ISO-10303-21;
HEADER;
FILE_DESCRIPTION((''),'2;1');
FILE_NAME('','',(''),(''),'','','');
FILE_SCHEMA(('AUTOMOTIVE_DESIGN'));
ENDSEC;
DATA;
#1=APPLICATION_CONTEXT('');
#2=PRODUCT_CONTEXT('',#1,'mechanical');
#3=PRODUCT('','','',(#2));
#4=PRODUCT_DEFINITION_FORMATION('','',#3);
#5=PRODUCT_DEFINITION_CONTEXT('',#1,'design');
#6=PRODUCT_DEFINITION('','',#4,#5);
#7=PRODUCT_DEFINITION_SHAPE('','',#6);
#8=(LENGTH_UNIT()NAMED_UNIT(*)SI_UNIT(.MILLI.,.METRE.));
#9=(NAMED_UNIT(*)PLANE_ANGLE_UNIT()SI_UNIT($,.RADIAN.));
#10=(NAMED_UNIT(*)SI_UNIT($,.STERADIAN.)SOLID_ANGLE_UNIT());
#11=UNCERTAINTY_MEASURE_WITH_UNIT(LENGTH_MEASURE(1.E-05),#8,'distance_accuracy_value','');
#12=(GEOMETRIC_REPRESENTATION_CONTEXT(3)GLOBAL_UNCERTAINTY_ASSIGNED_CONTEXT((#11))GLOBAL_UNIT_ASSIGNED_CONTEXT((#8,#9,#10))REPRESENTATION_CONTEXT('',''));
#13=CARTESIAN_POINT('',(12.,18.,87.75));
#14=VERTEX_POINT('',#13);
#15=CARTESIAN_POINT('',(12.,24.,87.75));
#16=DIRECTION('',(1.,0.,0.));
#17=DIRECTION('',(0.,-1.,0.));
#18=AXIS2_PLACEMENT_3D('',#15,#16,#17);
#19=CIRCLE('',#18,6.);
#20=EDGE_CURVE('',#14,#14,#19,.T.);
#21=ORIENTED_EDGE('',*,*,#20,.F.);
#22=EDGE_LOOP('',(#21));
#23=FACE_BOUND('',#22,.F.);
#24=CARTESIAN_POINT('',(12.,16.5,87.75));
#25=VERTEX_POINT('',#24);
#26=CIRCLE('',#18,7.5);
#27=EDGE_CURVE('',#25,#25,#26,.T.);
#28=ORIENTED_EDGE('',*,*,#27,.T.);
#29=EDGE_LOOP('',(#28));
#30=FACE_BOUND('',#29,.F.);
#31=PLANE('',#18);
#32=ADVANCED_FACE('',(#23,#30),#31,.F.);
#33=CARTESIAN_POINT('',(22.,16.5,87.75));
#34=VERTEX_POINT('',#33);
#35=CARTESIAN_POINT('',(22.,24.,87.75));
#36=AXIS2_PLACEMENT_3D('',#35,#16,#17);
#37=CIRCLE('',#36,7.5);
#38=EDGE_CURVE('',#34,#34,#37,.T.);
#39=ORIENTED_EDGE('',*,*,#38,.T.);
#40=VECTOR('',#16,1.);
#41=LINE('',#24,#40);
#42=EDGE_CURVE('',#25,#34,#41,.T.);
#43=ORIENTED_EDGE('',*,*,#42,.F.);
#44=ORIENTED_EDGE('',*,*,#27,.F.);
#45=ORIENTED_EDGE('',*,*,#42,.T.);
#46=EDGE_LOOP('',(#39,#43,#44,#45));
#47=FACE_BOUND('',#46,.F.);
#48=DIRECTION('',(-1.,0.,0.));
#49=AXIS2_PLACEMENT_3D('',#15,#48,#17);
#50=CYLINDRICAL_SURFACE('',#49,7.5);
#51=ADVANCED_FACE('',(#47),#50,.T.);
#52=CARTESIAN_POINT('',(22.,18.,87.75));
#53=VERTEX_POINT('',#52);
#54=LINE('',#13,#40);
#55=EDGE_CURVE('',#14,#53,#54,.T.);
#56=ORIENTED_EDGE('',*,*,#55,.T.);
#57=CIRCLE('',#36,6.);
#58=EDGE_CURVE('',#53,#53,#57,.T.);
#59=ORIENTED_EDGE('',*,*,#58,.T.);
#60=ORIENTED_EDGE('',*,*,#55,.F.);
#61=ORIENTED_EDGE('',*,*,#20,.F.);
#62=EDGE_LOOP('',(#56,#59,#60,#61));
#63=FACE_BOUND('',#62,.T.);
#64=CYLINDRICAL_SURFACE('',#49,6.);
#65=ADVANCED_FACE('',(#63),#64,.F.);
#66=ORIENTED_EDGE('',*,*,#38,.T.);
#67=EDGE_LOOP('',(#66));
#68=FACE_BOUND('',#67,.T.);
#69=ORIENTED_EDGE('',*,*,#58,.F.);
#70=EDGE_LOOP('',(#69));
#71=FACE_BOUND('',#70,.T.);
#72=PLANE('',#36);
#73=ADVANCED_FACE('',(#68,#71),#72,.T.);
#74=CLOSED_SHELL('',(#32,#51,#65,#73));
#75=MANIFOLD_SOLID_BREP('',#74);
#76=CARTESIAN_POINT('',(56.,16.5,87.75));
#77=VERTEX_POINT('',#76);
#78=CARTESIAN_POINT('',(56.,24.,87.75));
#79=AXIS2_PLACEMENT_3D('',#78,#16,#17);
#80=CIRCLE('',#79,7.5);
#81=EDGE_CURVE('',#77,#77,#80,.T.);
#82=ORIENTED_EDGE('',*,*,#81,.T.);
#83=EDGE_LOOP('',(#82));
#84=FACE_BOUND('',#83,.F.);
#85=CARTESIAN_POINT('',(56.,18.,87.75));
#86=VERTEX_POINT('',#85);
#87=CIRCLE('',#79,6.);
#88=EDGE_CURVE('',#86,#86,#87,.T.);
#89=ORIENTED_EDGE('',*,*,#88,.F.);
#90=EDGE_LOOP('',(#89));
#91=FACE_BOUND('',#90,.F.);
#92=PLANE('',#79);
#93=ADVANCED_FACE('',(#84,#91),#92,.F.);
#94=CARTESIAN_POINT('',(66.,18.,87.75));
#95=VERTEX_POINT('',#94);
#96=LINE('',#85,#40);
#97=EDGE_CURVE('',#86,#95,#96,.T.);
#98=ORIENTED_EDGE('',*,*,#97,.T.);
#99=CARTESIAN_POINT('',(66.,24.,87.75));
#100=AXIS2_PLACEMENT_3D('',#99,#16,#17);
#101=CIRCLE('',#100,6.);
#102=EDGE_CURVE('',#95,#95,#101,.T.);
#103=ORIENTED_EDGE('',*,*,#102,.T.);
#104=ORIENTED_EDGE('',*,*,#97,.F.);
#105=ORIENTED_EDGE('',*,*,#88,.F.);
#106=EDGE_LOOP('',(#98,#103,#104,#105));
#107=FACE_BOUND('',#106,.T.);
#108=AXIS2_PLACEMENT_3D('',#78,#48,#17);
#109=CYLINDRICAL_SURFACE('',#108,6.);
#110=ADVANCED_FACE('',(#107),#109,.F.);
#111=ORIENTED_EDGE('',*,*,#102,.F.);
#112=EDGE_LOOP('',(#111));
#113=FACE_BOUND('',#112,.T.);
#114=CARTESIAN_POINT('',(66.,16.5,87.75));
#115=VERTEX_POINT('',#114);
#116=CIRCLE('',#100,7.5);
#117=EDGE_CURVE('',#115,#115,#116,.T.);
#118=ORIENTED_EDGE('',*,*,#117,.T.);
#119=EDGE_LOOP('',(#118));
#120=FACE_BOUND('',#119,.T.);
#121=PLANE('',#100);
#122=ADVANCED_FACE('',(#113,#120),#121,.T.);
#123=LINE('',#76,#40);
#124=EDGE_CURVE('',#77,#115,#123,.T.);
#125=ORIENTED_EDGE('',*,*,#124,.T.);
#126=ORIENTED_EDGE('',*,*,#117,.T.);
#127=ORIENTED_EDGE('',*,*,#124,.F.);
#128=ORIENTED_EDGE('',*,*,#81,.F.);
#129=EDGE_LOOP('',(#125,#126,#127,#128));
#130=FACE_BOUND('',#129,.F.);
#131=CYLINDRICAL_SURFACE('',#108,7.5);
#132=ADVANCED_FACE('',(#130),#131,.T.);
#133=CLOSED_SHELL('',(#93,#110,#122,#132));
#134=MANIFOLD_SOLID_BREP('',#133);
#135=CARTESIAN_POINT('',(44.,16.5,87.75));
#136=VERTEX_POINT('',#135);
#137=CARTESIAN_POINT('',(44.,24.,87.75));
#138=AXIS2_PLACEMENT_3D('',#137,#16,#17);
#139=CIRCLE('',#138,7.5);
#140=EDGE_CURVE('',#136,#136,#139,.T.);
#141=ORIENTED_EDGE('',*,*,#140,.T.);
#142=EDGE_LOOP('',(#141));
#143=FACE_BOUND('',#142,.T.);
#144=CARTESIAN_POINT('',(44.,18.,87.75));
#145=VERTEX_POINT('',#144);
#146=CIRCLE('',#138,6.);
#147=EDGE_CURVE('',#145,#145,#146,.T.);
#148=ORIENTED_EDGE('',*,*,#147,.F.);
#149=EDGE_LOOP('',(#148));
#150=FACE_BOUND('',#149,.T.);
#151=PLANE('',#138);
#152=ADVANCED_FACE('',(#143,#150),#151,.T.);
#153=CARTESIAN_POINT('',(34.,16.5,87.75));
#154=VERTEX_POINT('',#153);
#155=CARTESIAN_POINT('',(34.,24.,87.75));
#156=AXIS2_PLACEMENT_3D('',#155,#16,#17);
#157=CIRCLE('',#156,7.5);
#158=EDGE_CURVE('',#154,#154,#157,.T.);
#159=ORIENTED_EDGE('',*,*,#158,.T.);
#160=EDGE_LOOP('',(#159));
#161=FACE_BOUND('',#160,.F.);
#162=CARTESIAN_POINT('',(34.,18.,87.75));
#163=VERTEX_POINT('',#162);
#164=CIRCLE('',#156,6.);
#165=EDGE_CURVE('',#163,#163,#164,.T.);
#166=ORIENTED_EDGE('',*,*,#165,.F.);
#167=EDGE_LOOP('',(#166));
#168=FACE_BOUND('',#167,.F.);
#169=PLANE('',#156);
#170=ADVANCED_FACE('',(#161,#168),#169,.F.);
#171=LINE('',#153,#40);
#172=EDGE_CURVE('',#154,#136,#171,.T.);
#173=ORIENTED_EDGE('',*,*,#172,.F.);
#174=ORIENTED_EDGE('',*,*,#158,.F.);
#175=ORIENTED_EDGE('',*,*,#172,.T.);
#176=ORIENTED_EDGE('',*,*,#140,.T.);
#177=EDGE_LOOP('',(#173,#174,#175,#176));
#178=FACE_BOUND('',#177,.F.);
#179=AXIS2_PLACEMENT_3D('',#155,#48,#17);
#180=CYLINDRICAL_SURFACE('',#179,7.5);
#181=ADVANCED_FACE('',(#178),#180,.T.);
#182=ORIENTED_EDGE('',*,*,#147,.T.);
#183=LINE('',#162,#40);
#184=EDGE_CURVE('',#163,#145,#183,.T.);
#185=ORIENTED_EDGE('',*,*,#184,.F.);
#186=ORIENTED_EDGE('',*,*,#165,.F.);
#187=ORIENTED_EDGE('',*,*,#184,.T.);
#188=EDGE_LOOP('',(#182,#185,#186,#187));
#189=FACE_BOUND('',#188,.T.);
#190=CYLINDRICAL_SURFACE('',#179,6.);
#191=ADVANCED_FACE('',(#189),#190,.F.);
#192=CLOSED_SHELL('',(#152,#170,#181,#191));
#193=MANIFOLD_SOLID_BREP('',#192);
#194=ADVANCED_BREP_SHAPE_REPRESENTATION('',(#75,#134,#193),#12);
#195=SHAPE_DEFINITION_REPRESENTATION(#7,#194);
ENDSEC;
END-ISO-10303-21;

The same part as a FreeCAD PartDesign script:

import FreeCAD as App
import Part
import Sketcher

doc = App.newDocument("Part")
body = doc.addObject("PartDesign::Body", "Body")

# Sketch on YZ plane
sketch1 = doc.addObject("Sketcher::SketchObject", "Sketch")
body.addObject(sketch1)
sketch1.AttachmentSupport = (doc.YZ_Plane, [""])
sketch1.MapMode = "FlatFace"
sketch1.AttachmentOffset = App.Placement(App.Vector(0, 0, 56), App.Rotation())
sketch1.addGeometry([
    Part.Circle(App.Vector(24, 87.75, 0), App.Vector(0, 0, 1), 7.5),
    Part.Circle(App.Vector(24, 87.75, 0), App.Vector(0, 0, 1), 6),
], False)
sketch1.addConstraint([
    Sketcher.Constraint("Coincident", 1, 3, 0, 3),
    Sketcher.Constraint("Diameter", 0, 15.0),
    Sketcher.Constraint("Diameter", 1, 12.0),
    Sketcher.Constraint("DistanceX", -1, 1, 0, 3, 24.0),
    Sketcher.Constraint("DistanceY", -1, 1, 0, 3, 87.75),
])
pad1 = doc.addObject("PartDesign::Pad", "Pad")
body.addObject(pad1)
pad1.Profile = sketch1
pad1.Length = 10
body2 = doc.addObject("PartDesign::Body", "Body001")

# Sketch on YZ plane
sketch2 = doc.addObject("Sketcher::SketchObject", "Sketch001")
body2.addObject(sketch2)
sketch2.AttachmentSupport = (doc.getObject("YZ_Plane001"), [""])
sketch2.MapMode = "FlatFace"
sketch2.AttachmentOffset = App.Placement(App.Vector(0, 0, 12), App.Rotation())
sketch2.addGeometry([
    Part.Circle(App.Vector(24, 87.75, 0), App.Vector(0, 0, 1), 7.5),
    Part.Circle(App.Vector(24, 87.75, 0), App.Vector(0, 0, 1), 6),
], False)
sketch2.addConstraint([
    Sketcher.Constraint("Coincident", 1, 3, 0, 3),
    Sketcher.Constraint("Diameter", 0, 15.0),
    Sketcher.Constraint("Diameter", 1, 12.0),
    Sketcher.Constraint("DistanceX", -1, 1, 0, 3, 24.0),
    Sketcher.Constraint("DistanceY", -1, 1, 0, 3, 87.75),
])
pad2 = doc.addObject("PartDesign::Pad", "Pad001")
body2.addObject(pad2)
pad2.Profile = sketch2
pad2.Length = 10
body3 = doc.addObject("PartDesign::Body", "Body002")
body3.AllowCompound = True

# Sketch on YZ plane
sketch3 = doc.addObject("Sketcher::SketchObject", "Sketch002")
body3.addObject(sketch3)
sketch3.AttachmentSupport = (doc.getObject("YZ_Plane002"), [""])
sketch3.MapMode = "FlatFace"
sketch3.AttachmentOffset = App.Placement(App.Vector(0, 0, 34), App.Rotation())
sketch3.addGeometry([
    Part.Circle(App.Vector(24, 87.75, 0), App.Vector(0, 0, 1), 7.5),
    Part.Circle(App.Vector(24, 87.75, 0), App.Vector(0, 0, 1), 6),
], False)
sketch3.addConstraint([
    Sketcher.Constraint("Coincident", 1, 3, 0, 3),
    Sketcher.Constraint("Diameter", 0, 15.0),
    Sketcher.Constraint("Diameter", 1, 12.0),
    Sketcher.Constraint("DistanceX", -1, 1, 0, 3, 24.0),
    Sketcher.Constraint("DistanceY", -1, 1, 0, 3, 87.75),
])
pad3 = doc.addObject("PartDesign::Pad", "Pad002")
body3.addObject(pad3)
pad3.Profile = sketch3
pad3.Length = 10
doc.recompute()

boolean = doc.addObject("PartDesign::Boolean", "Boolean")
body3.addObject(boolean)
boolean.Type = "Fuse"
boolean.addObjects([body])
doc.recompute()

boolean2 = doc.addObject("PartDesign::Boolean", "Boolean001")
body3.addObject(boolean2)
boolean2.Type = "Fuse"
boolean2.addObjects([body2])

doc.recompute()
